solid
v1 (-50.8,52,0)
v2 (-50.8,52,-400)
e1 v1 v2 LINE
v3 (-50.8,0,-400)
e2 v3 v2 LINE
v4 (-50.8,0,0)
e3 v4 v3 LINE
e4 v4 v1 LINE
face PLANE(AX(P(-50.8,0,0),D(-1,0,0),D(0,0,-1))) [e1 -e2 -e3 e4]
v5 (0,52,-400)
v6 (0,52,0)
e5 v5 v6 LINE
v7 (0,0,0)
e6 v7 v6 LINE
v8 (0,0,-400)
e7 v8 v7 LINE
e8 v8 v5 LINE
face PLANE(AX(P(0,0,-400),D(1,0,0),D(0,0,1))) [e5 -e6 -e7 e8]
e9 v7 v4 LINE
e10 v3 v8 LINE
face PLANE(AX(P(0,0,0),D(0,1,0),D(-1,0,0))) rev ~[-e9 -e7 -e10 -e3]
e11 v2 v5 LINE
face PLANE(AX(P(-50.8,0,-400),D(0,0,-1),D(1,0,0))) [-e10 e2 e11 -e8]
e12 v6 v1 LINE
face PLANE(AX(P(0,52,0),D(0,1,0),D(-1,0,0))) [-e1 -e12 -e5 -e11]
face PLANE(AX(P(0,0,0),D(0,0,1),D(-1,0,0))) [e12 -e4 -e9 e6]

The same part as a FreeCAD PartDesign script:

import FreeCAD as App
import Part
import Sketcher
from FreeCAD import Vector

doc = App.newDocument("Part")
body = doc.addObject("PartDesign::Body", "Body")

sketch1 = doc.addObject("Sketcher::SketchObject", "Sketch")
body.addObject(sketch1)
sketch1.AttachmentSupport = (doc.XZ_Plane, [""])
sketch1.MapMode = "FlatFace"
sketch1.addGeometry(Part.LineSegment(Vector(-51, 0, 0), Vector(0, 0, 0)), False)
sketch1.addGeometry(Part.LineSegment(Vector(0, 0, 0), Vector(0, -400, 0)), False)
sketch1.addGeometry(Part.LineSegment(Vector(0, -400, 0), Vector(-51, -400, 0)), False)
sketch1.addGeometry(Part.LineSegment(Vector(-51, -400, 0), Vector(-51, 0, 0)), False)
sketch1.addConstraint(Sketcher.Constraint("Coincident", 0, 2, 1, 1))
sketch1.addConstraint(Sketcher.Constraint("Coincident", 1, 2, 2, 1))
sketch1.addConstraint(Sketcher.Constraint("Coincident", 2, 2, 3, 1))
sketch1.addConstraint(Sketcher.Constraint("Coincident", 3, 2, 0, 1))
sketch1.addConstraint(Sketcher.Constraint("Horizontal", 0))
sketch1.addConstraint(Sketcher.Constraint("Vertical", 1))
sketch1.addConstraint(Sketcher.Constraint("Horizontal", 2))
sketch1.addConstraint(Sketcher.Constraint("Vertical", 3))
sketch1.addConstraint(Sketcher.Constraint("Coincident", 0, 2, -1, 1))
sketch1.addConstraint(Sketcher.Constraint("DistanceY", 1, 2, 1, 1, 400.0))
sketch1.addConstraint(Sketcher.Constraint("DistanceX", 0, 1, 0, 2, 50.8))
pad1 = doc.addObject("PartDesign::Pad", "Pad")
body.addObject(pad1)
pad1.Profile = sketch1
pad1.Length = 52
pad1.Reversed = True

doc.recompute()
